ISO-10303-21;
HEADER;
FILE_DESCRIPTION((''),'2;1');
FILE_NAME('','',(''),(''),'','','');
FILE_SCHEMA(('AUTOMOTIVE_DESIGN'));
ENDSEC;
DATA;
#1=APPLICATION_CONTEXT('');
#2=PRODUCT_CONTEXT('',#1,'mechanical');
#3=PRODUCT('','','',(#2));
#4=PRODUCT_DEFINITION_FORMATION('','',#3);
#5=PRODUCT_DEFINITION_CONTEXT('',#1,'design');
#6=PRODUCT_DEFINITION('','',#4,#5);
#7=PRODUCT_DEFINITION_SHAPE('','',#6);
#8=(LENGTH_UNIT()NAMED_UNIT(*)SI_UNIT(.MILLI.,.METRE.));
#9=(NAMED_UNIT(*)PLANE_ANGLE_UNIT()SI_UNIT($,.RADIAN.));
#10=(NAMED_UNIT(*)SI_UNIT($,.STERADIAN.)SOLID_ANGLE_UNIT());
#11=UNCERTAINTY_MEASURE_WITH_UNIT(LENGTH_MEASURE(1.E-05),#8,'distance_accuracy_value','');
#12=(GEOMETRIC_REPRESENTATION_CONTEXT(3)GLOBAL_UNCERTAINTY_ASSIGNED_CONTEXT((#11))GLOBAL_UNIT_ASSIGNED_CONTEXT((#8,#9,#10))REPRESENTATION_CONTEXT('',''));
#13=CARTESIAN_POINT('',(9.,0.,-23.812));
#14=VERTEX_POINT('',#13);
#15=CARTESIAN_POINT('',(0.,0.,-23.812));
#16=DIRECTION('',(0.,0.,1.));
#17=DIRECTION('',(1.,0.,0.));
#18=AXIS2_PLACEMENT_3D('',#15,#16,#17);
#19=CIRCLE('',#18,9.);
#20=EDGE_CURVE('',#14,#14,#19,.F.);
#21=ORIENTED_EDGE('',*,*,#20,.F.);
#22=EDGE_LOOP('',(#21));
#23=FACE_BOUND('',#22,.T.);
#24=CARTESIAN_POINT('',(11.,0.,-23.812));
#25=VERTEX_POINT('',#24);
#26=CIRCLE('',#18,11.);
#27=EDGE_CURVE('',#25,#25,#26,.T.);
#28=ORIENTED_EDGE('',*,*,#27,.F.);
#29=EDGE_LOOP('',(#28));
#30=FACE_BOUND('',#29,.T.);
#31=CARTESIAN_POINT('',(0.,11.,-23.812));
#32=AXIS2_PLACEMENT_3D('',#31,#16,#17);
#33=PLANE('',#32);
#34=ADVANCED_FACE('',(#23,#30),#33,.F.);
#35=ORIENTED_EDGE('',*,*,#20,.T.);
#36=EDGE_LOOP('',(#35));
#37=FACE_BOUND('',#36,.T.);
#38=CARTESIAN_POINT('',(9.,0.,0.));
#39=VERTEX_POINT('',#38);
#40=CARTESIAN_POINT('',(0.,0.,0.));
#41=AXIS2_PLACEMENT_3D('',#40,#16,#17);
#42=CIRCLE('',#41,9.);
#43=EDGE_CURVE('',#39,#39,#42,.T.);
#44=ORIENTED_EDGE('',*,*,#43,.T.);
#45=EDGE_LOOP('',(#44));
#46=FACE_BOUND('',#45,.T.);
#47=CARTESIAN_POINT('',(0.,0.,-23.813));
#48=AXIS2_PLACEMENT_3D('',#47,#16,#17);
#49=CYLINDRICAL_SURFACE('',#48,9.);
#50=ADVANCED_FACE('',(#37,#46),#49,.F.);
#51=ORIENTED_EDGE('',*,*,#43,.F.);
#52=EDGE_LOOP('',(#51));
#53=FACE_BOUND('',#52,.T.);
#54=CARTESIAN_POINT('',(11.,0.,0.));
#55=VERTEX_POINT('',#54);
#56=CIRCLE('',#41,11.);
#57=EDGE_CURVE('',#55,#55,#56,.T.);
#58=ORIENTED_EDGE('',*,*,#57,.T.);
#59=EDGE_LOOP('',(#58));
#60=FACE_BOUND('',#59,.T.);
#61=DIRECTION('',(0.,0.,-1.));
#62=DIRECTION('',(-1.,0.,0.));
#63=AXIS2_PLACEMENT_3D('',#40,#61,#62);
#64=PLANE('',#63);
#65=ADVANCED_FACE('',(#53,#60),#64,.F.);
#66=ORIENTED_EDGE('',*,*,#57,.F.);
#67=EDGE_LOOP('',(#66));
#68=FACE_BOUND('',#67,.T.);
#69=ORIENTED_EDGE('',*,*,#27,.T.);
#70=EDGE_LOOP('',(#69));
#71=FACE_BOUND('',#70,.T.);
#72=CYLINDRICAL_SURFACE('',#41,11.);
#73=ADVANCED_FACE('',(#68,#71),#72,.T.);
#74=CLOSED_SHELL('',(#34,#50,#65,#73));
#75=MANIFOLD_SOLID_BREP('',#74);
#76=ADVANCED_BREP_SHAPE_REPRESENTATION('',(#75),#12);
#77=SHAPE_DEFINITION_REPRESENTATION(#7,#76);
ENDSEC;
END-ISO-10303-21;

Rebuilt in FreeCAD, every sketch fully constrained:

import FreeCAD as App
import Part
import Sketcher
from FreeCAD import Vector
Q = App.Units.Quantity

doc = App.newDocument("Part")
params = doc.addObject("Spreadsheet::Sheet", "Params")
for row, (alias, value) in enumerate([
    ("sketch1_width", "11 mm"),
    ("revolution_angle", "360 deg"),
    ("sketch2_diameter", "18 mm"),
], start=1):
    params.set(f"A{row}", alias)
    params.set(f"B{row}", "=" + value)
    params.setAlias(f"B{row}", alias)

body = doc.addObject("PartDesign::Body", "Body")

# Sketch on YZ plane
sketch1 = body.newObject("Sketcher::SketchObject", "Sketch")
sketch1.AttachmentSupport = (doc.getObject("YZ_Plane"), [""])
sketch1.MapMode = "FlatFace"
sketch1.addGeometry(Part.LineSegment(Vector(11, 0, 0), Vector(0, 0, 0)), False)
sketch1.addGeometry(Part.LineSegment(Vector(0, 0, 0), Vector(0, -24, 0)), False)
sketch1.addGeometry(Part.LineSegment(Vector(0, -24, 0), Vector(11, -24, 0)), False)
sketch1.addGeometry(Part.LineSegment(Vector(11, -24, 0), Vector(11, 0, 0)), False)
sketch1.addConstraint(Sketcher.Constraint("Coincident", 0, 2, 1, 1))
sketch1.addConstraint(Sketcher.Constraint("Coincident", 1, 2, 2, 1))
sketch1.addConstraint(Sketcher.Constraint("Coincident", 2, 2, 3, 1))
sketch1.addConstraint(Sketcher.Constraint("Coincident", 3, 2, 0, 1))
sketch1.addConstraint(Sketcher.Constraint("Horizontal", 0))
sketch1.addConstraint(Sketcher.Constraint("Vertical", 1))
sketch1.addConstraint(Sketcher.Constraint("Horizontal", 2))
sketch1.addConstraint(Sketcher.Constraint("Vertical", 3))
sketch1.addConstraint(Sketcher.Constraint("Coincident", 0, 2, -1, 1))
sketch1.addConstraint(Sketcher.Constraint("DistanceX", 0, 2, 0, 1, Q("11 mm")))
sketch1.addConstraint(Sketcher.Constraint("DistanceY", 1, 2, 1, 1, Q("23.812 mm")))
sketch1.setExpression("Constraints[9]", "Params.sketch1_width")
revolution = body.newObject("PartDesign::Revolution", "Revolution")
revolution.Profile = sketch1
revolution.ReferenceAxis = (sketch1, ["V_Axis"])
revolution.setExpression("Angle", "Params.revolution_angle")

# Sketch on XY plane
sketch2 = body.newObject("Sketcher::SketchObject", "Sketch001")
sketch2.AttachmentSupport = (doc.getObject("XY_Plane"), [""])
sketch2.MapMode = "FlatFace"
sketch2.addGeometry(Part.Circle(Vector(0, 0, 0), Vector(0, 0, 1), 9), False)
sketch2.addConstraint(Sketcher.Constraint("Coincident", 0, 3, -1, 1))
sketch2.addConstraint(Sketcher.Constraint("Diameter", 0, Q("18 mm")))
sketch2.setExpression("Constraints[1]", "Params.sketch2_diameter")
pocket1 = body.newObject("PartDesign::Pocket", "Pocket")
pocket1.Profile = sketch2
pocket1.Type = "UpToFirst"

doc.recompute()
